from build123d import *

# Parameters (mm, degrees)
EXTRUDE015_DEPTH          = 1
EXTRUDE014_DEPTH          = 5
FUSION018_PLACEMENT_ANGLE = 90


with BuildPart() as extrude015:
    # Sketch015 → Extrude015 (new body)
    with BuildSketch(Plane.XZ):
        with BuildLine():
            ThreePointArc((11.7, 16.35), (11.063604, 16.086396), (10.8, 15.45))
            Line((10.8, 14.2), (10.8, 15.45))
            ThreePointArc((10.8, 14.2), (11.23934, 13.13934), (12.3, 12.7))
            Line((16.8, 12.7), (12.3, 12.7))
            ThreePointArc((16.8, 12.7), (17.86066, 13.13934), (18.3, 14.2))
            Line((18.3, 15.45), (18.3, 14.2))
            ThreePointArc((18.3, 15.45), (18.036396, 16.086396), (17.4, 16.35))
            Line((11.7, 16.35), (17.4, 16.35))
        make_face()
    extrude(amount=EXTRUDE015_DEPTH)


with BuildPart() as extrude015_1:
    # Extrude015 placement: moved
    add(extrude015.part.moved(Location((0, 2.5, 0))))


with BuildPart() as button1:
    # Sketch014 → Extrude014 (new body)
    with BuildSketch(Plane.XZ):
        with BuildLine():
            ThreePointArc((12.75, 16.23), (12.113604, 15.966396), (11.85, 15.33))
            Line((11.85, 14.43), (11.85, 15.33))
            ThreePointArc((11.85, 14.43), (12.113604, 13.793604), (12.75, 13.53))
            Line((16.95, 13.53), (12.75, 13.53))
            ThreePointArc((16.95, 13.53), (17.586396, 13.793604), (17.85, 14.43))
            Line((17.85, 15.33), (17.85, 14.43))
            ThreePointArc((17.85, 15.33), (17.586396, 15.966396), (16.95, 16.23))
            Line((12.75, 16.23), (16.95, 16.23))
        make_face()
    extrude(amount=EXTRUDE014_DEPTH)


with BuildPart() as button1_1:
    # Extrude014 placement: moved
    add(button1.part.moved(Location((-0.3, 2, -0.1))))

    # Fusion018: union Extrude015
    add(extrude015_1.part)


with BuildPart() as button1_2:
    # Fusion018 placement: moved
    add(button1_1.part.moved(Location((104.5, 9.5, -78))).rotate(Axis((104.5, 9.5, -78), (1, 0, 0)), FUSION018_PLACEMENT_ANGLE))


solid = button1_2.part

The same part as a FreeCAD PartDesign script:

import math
import FreeCAD as App
import Part
import Sketcher

V = App.Vector
Q = App.Units.Quantity

doc = App.newDocument("Part")
body = doc.addObject("PartDesign::Body", "Body")

# Sketch on XZ plane
sketch1 = body.newObject("Sketcher::SketchObject", "Sketch")
sketch1.AttachmentSupport = (doc.getObject("XZ_Plane"), [""])
sketch1.MapMode = "FlatFace"
sketch1.addGeometry([
    Part.ArcOfCircle(Part.Circle(V(11.7, 15.4, 0), V(0, 0, 1), 0.9), math.radians(90), math.radians(180)),  # 0
    Part.LineSegment(V(10.8, 15.4, 0), V(10.8, 14.2, 0)),  # 1
    Part.ArcOfCircle(Part.Circle(V(12.3, 14.2, 0), V(0, 0, 1), 1.5), math.radians(-180), math.radians(-90)),  # 2
    Part.LineSegment(V(12.3, 12.7, 0), V(16.8, 12.7, 0)),  # 3
    Part.ArcOfCircle(Part.Circle(V(16.8, 14.2, 0), V(0, 0, 1), 1.5), math.radians(-90), math.radians(0)),  # 4
    Part.LineSegment(V(18.3, 14.2, 0), V(18.3, 15.4, 0)),  # 5
    Part.ArcOfCircle(Part.Circle(V(17.4, 15.4, 0), V(0, 0, 1), 0.9), math.radians(0), math.radians(90)),  # 6
    Part.LineSegment(V(17.4, 16.4, 0), V(11.7, 16.4, 0)),  # 7
], False)
sketch1.addConstraint([
    Sketcher.Constraint("Tangent", 0, 2, 1, 1),
    Sketcher.Constraint("Tangent", 1, 2, 2, 1),
    Sketcher.Constraint("Tangent", 2, 2, 3, 1),
    Sketcher.Constraint("Tangent", 3, 2, 4, 1),
    Sketcher.Constraint("Tangent", 4, 2, 5, 1),
    Sketcher.Constraint("Tangent", 5, 2, 6, 1),
    Sketcher.Constraint("Tangent", 6, 2, 7, 1),
    Sketcher.Constraint("Tangent", 7, 2, 0, 1),
    Sketcher.Constraint("Vertical", 1),
    Sketcher.Constraint("Horizontal", 3),
    Sketcher.Constraint("Vertical", 5),
    Sketcher.Constraint("Horizontal", 7),
    Sketcher.Constraint("Equal", 2, 4),
    Sketcher.Constraint("Equal", 0, 6),
    Sketcher.Constraint("Radius", 0, Q("0.9 mm")),
    Sketcher.Constraint("Radius", 2, Q("1.500001 mm")),
    Sketcher.Constraint("DistanceX", 3, 1, 3, 2, Q("4.5 mm")),
    Sketcher.Constraint("DistanceY", 1, 2, 1, 1, Q("1.25 mm")),
    Sketcher.Constraint("DistanceX", -1, 1, 0, 3, Q("11.7 mm")),
    Sketcher.Constraint("DistanceY", -1, 1, 2, 3, Q("14.200001 mm")),
])
pad1 = body.newObject("PartDesign::Pad", "Pad")
pad1.Profile = sketch1
pad1.Length = 1
body2 = doc.addObject("PartDesign::Body", "Body001")
doc.recompute()

body.Placement = App.Placement(V(0, 2.5, 0), App.Rotation(V(0, 0, 1), 0))
boolean = body2.newObject("PartDesign::Boolean", "Boolean")
boolean.Type = "Fuse"
boolean.addObjects([body])
body3 = doc.addObject("PartDesign::Body", "Body002")

# Sketch on XZ plane
sketch2 = body3.newObject("Sketcher::SketchObject", "Sketch001")
sketch2.AttachmentSupport = (doc.getObject("XZ_Plane002"), [""])
sketch2.MapMode = "FlatFace"
sketch2.addGeometry([
    Part.ArcOfCircle(Part.Circle(V(12.8, 15.3, 0), V(0, 0, 1), 0.9), math.radians(90), math.radians(180)),  # 0
    Part.LineSegment(V(11.8, 15.3, 0), V(11.8, 14.4, 0)),  # 1
    Part.ArcOfCircle(Part.Circle(V(12.8, 14.4, 0), V(0, 0, 1), 0.9), math.radians(-180), math.radians(-90)),  # 2
    Part.LineSegment(V(12.8, 13.5, 0), V(16.9, 13.5, 0)),  # 3
    Part.ArcOfCircle(Part.Circle(V(16.9, 14.4, 0), V(0, 0, 1), 0.9), math.radians(-90), math.radians(0)),  # 4
    Part.LineSegment(V(17.9, 14.4, 0), V(17.9, 15.3, 0)),  # 5
    Part.ArcOfCircle(Part.Circle(V(16.9, 15.3, 0), V(0, 0, 1), 0.9), math.radians(0), math.radians(90)),  # 6
    Part.LineSegment(V(16.9, 16.2, 0), V(12.8, 16.2, 0)),  # 7
], False)
sketch2.addConstraint([
    Sketcher.Constraint("Tangent", 0, 2, 1, 1),
    Sketcher.Constraint("Tangent", 1, 2, 2, 1),
    Sketcher.Constraint("Tangent", 2, 2, 3, 1),
    Sketcher.Constraint("Tangent", 3, 2, 4, 1),
    Sketcher.Constraint("Tangent", 4, 2, 5, 1),
    Sketcher.Constraint("Tangent", 5, 2, 6, 1),
    Sketcher.Constraint("Tangent", 6, 2, 7, 1),
    Sketcher.Constraint("Tangent", 7, 2, 0, 1),
    Sketcher.Constraint("Vertical", 1),
    Sketcher.Constraint("Horizontal", 3),
    Sketcher.Constraint("Vertical", 5),
    Sketcher.Constraint("Horizontal", 7),
    Sketcher.Constraint("Equal", 0, 2),
    Sketcher.Constraint("Equal", 2, 4),
    Sketcher.Constraint("Equal", 4, 6),
    Sketcher.Constraint("Radius", 0, Q("0.9 mm")),
    Sketcher.Constraint("DistanceX", 3, 1, 3, 2, Q("4.2 mm")),
    Sketcher.Constraint("DistanceY", 1, 2, 1, 1, Q("0.9 mm")),
    Sketcher.Constraint("DistanceX", -1, 1, 0, 3, Q("12.75 mm")),
    Sketcher.Constraint("DistanceY", -1, 1, 0, 3, Q("15.33 mm")),
])
pad2 = body3.newObject("PartDesign::Pad", "Pad001")
pad2.Profile = sketch2
pad2.Length = 5
body4 = doc.addObject("PartDesign::Body", "Body003")
doc.recompute()

body3.Placement = App.Placement(V(-0.3, 2, -0.1), App.Rotation(V(0, 0, 1), 0))
boolean2 = body4.newObject("PartDesign::Boolean", "Boolean001")
boolean2.Type = "Fuse"
boolean2.addObjects([body3])
doc.recompute()

boolean3 = body4.newObject("PartDesign::Boolean", "Boolean002")
boolean3.Type = "Fuse"
boolean3.addObjects([body2])
body5 = doc.addObject("PartDesign::Body", "Body004")
doc.recompute()

body4.Placement = App.Placement(V(104.5, 9.5, -78), App.Rotation(V(1, 0, 0), 90))
boolean4 = body5.newObject("PartDesign::Boolean", "Boolean003")
boolean4.Type = "Fuse"
boolean4.addObjects([body4])

doc.recompute()
